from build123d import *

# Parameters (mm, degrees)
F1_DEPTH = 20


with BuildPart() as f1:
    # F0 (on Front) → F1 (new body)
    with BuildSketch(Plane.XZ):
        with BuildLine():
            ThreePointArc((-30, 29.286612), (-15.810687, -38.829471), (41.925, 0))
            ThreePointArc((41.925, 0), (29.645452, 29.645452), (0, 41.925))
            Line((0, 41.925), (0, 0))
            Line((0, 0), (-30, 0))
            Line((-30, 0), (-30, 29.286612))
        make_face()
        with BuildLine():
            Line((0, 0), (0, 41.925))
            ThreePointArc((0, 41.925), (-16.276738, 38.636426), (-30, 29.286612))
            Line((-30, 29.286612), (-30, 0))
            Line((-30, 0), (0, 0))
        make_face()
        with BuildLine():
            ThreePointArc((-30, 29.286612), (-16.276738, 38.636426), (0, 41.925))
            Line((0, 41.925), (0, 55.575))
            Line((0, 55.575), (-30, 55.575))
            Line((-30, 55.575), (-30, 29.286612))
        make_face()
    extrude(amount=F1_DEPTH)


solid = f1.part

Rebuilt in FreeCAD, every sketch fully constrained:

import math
import FreeCAD as App
import Part
import Sketcher
Q = App.Units.Quantity

doc = App.newDocument("Part")
body = doc.addObject("PartDesign::Body", "Body")

# Sketch on XZ plane
sketch1 = body.newObject("Sketcher::SketchObject", "Sketch")
sketch1.AttachmentSupport = (doc.getObject("XZ_Plane"), [""])
sketch1.MapMode = "FlatFace"
sketch1.addGeometry([
    Part.ArcOfCircle(Part.Circle(App.Vector(0, 0, 0), App.Vector(0, 0, 1), 42), math.radians(136), math.radians(360)),  # 0
    Part.ArcOfCircle(Part.Circle(App.Vector(0, 0, 0), App.Vector(0, 0, 1), 42), math.radians(0), math.radians(90)),  # 1
    Part.LineSegment(App.Vector(0, 42, 0), App.Vector(0, 56, 0)),  # 2
    Part.LineSegment(App.Vector(0, 56, 0), App.Vector(-30, 56, 0)),  # 3
    Part.LineSegment(App.Vector(-30, 56, 0), App.Vector(-30, 29, 0)),  # 4
], False)
sketch1.addConstraint([
    Sketcher.Constraint("Tangent", 0, 2, 1, 1),
    Sketcher.Constraint("Coincident", 1, 2, 2, 1),
    Sketcher.Constraint("Coincident", 2, 2, 3, 1),
    Sketcher.Constraint("Coincident", 3, 2, 4, 1),
    Sketcher.Constraint("Coincident", 4, 2, 0, 1),
    Sketcher.Constraint("Vertical", 2),
    Sketcher.Constraint("Horizontal", 3),
    Sketcher.Constraint("Vertical", 4),
    Sketcher.Constraint("Coincident", 0, 3, -1, 1),
    Sketcher.Constraint("Equal", 0, 1),
    Sketcher.Constraint("PointOnObject", 0, 2, -1),
    Sketcher.Constraint("PointOnObject", 1, 2, -2),
    Sketcher.Constraint("DistanceX", 3, 2, 3, 1, Q("30 mm")),
    Sketcher.Constraint("Radius", 0, Q("41.925 mm")),
    Sketcher.Constraint("DistanceY", 2, 1, 2, 2, Q("13.65 mm")),
])
pad1 = body.newObject("PartDesign::Pad", "Pad")
pad1.Profile = sketch1
pad1.Length = 20

doc.recompute()
